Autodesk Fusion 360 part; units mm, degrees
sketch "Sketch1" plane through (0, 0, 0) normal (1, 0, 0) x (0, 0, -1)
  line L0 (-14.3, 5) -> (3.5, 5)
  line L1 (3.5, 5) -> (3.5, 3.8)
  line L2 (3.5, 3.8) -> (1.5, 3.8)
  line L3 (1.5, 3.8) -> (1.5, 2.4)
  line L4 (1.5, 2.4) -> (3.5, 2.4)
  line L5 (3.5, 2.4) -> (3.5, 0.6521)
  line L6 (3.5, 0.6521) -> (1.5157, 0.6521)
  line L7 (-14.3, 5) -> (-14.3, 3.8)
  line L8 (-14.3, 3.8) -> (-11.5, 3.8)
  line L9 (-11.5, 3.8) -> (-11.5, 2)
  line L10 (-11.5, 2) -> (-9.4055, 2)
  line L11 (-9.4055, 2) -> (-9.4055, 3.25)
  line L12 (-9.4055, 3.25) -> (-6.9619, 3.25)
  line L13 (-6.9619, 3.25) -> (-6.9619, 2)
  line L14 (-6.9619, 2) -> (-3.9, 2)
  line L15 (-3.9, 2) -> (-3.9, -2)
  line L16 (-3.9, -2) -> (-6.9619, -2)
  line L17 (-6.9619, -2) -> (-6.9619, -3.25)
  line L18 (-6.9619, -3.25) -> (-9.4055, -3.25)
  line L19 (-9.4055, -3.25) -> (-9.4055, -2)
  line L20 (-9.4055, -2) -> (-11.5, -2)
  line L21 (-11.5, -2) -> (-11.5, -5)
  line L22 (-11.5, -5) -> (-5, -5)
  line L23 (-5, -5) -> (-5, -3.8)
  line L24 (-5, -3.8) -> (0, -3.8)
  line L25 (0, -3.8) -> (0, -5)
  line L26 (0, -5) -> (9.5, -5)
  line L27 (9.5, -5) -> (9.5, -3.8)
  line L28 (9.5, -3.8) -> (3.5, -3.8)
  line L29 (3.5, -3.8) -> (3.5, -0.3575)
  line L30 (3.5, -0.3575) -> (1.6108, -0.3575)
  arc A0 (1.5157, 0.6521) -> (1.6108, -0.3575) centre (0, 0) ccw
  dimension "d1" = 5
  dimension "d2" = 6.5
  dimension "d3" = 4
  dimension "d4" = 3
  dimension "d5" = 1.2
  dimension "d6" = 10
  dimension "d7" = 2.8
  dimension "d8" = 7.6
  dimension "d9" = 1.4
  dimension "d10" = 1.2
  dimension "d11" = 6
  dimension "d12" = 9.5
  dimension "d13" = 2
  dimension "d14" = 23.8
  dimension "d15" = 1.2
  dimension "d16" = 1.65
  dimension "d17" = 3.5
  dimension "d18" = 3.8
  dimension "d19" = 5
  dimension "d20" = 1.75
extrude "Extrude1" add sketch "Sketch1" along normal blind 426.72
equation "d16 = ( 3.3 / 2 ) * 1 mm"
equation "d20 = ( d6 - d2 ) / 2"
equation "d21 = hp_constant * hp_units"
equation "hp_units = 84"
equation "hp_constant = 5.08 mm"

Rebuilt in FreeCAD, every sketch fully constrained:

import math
import FreeCAD as App
import Part
import Sketcher

V = App.Vector

doc = App.newDocument("Part")
body = doc.addObject("PartDesign::Body", "Body")

# Sketch on YZ plane
sketch1 = body.newObject("Sketcher::SketchObject", "Sketch")
sketch1.AttachmentSupport = (doc.getObject("YZ_Plane"), [""])
sketch1.MapMode = "FlatFace"
sketch1.addGeometry([
    Part.LineSegment(V(5, -3.5, 0), V(5, 14.3, 0)),  # 0
    Part.LineSegment(V(5, 14.3, 0), V(3.8, 14.3, 0)),  # 1
    Part.LineSegment(V(3.8, 14.3, 0), V(3.8, 11.5, 0)),  # 2
    Part.LineSegment(V(3.8, 11.5, 0), V(2, 11.5, 0)),  # 3
    Part.LineSegment(V(2, 11.5, 0), V(2, 9.4055, 0)),  # 4
    Part.LineSegment(V(2, 9.4055, 0), V(3.25, 9.4055, 0)),  # 5
    Part.LineSegment(V(3.25, 9.4055, 0), V(3.25, 6.9619, 0)),  # 6
    Part.LineSegment(V(3.25, 6.9619, 0), V(2, 6.9619, 0)),  # 7
    Part.LineSegment(V(2, 6.9619, 0), V(2, 3.9, 0)),  # 8
    Part.LineSegment(V(2, 3.9, 0), V(-2, 3.9, 0)),  # 9
    Part.LineSegment(V(-2, 3.9, 0), V(-2, 6.9619, 0)),  # 10
    Part.LineSegment(V(-2, 6.9619, 0), V(-3.25, 6.9619, 0)),  # 11
    Part.LineSegment(V(-3.25, 6.9619, 0), V(-3.25, 9.4055, 0)),  # 12
    Part.LineSegment(V(-3.25, 9.4055, 0), V(-2, 9.4055, 0)),  # 13
    Part.LineSegment(V(-2, 9.4055, 0), V(-2, 11.5, 0)),  # 14
    Part.LineSegment(V(-2, 11.5, 0), V(-5, 11.5, 0)),  # 15
    Part.LineSegment(V(-5, 11.5, 0), V(-5, 5, 0)),  # 16
    Part.LineSegment(V(-5, 5, 0), V(-3.8, 5, 0)),  # 17
    Part.LineSegment(V(-3.8, 5, 0), V(-3.8, 0, 0)),  # 18
    Part.LineSegment(V(-3.8, 0, 0), V(-5, 0, 0)),  # 19
    Part.LineSegment(V(-5, 0, 0), V(-5, -9.5, 0)),  # 20
    Part.LineSegment(V(-5, -9.5, 0), V(-3.8, -9.5, 0)),  # 21
    Part.LineSegment(V(-3.8, -9.5, 0), V(-3.8, -3.5, 0)),  # 22
    Part.LineSegment(V(-3.8, -3.5, 0), V(-0.3575, -3.5, 0)),  # 23
    Part.LineSegment(V(-0.3575, -3.5, 0), V(-0.3575, -1.6108, 0)),  # 24
    Part.ArcOfCircle(Part.Circle(V(0, 0, 0), V(0, 0, 1), 1.650025), math.radians(-66.721162), math.radians(257.486635)),  # 25
    Part.LineSegment(V(0.6521, -1.5157, 0), V(0.6521, -3.5, 0)),  # 26
    Part.LineSegment(V(0.6521, -3.5, 0), V(2.4, -3.5, 0)),  # 27
    Part.LineSegment(V(2.4, -3.5, 0), V(2.4, -1.5, 0)),  # 28
    Part.LineSegment(V(2.4, -1.5, 0), V(3.8, -1.5, 0)),  # 29
    Part.LineSegment(V(3.8, -1.5, 0), V(3.8, -3.5, 0)),  # 30
    Part.LineSegment(V(3.8, -3.5, 0), V(5, -3.5, 0)),  # 31
], False)
sketch1.addConstraint([
    Sketcher.Constraint("Coincident", 0, 2, 1, 1),
    Sketcher.Constraint("Coincident", 1, 2, 2, 1),
    Sketcher.Constraint("Coincident", 2, 2, 3, 1),
    Sketcher.Constraint("Coincident", 3, 2, 4, 1),
    Sketcher.Constraint("Coincident", 4, 2, 5, 1),
    Sketcher.Constraint("Coincident", 5, 2, 6, 1),
    Sketcher.Constraint("Coincident", 6, 2, 7, 1),
    Sketcher.Constraint("Coincident", 7, 2, 8, 1),
    Sketcher.Constraint("Coincident", 8, 2, 9, 1),
    Sketcher.Constraint("Coincident", 9, 2, 10, 1),
    Sketcher.Constraint("Coincident", 10, 2, 11, 1),
    Sketcher.Constraint("Coincident", 11, 2, 12, 1),
    Sketcher.Constraint("Coincident", 12, 2, 13, 1),
    Sketcher.Constraint("Coincident", 13, 2, 14, 1),
    Sketcher.Constraint("Coincident", 14, 2, 15, 1),
    Sketcher.Constraint("Coincident", 15, 2, 16, 1),
    Sketcher.Constraint("Coincident", 16, 2, 17, 1),
    Sketcher.Constraint("Coincident", 17, 2, 18, 1),
    Sketcher.Constraint("Coincident", 18, 2, 19, 1),
    Sketcher.Constraint("Coincident", 19, 2, 20, 1),
    Sketcher.Constraint("Coincident", 20, 2, 21, 1),
    Sketcher.Constraint("Coincident", 21, 2, 22, 1),
    Sketcher.Constraint("Coincident", 22, 2, 23, 1),
    Sketcher.Constraint("Coincident", 23, 2, 24, 1),
    Sketcher.Constraint("Coincident", 24, 2, 25, 2),
    Sketcher.Constraint("Coincident", 25, 1, 26, 1),
    Sketcher.Constraint("Coincident", 26, 2, 27, 1),
    Sketcher.Constraint("Coincident", 27, 2, 28, 1),
    Sketcher.Constraint("Coincident", 28, 2, 29, 1),
    Sketcher.Constraint("Coincident", 29, 2, 30, 1),
    Sketcher.Constraint("Coincident", 30, 2, 31, 1),
    Sketcher.Constraint("Coincident", 31, 2, 0, 1),
    Sketcher.Constraint("Vertical", 0),
    Sketcher.Constraint("Horizontal", 1),
    Sketcher.Constraint("Vertical", 2),
    Sketcher.Constraint("Horizontal", 3),
    Sketcher.Constraint("Vertical", 4),
    Sketcher.Constraint("Horizontal", 5),
    Sketcher.Constraint("Vertical", 6),
    Sketcher.Constraint("Horizontal", 7),
    Sketcher.Constraint("Vertical", 8),
    Sketcher.Constraint("Horizontal", 9),
    Sketcher.Constraint("Vertical", 10),
    Sketcher.Constraint("Horizontal", 11),
    Sketcher.Constraint("Vertical", 12),
    Sketcher.Constraint("Horizontal", 13),
    Sketcher.Constraint("Vertical", 14),
    Sketcher.Constraint("Horizontal", 15),
    Sketcher.Constraint("Vertical", 16),
    Sketcher.Constraint("Horizontal", 17),
    Sketcher.Constraint("Vertical", 18),
    Sketcher.Constraint("Horizontal", 19),
    Sketcher.Constraint("Vertical", 20),
    Sketcher.Constraint("Horizontal", 21),
    Sketcher.Constraint("Vertical", 22),
    Sketcher.Constraint("Horizontal", 23),
    Sketcher.Constraint("Vertical", 24),
    Sketcher.Constraint("Vertical", 26),
    Sketcher.Constraint("Horizontal", 27),
    Sketcher.Constraint("Vertical", 28),
    Sketcher.Constraint("Horizontal", 29),
    Sketcher.Constraint("Vertical", 30),
    Sketcher.Constraint("Horizontal", 31),
    Sketcher.Constraint("Coincident", 25, 3, -1, 1),
    Sketcher.Constraint("Symmetric", 7, 2, 10, 2, -2),
    Sketcher.Constraint("Symmetric", 5, 2, 12, 2, -2),
    Sketcher.Constraint("Symmetric", 3, 2, 14, 2, -2),
    Sketcher.Constraint("Symmetric", 22, 2, 30, 2, -2),
    Sketcher.Constraint("PointOnObject", 18, 2, -1),
    Sketcher.Constraint("Horizontal", 23, 2, 26, 2),
    Sketcher.Constraint("Vertical", 4, 2, 7, 2),
    Sketcher.Constraint("Vertical", 16, 2, 19, 2),
    Sketcher.Constraint("Vertical", 18, 2, 21, 2),
    Sketcher.Constraint("Vertical", 2, 2, 29, 2),
    Sketcher.Constraint("Equal", 1, 17),
    Sketcher.Constraint("DistanceX", 9, 2, 9, 1, 4.0),
    Sketcher.Constraint("DistanceX", 15, 2, 15, 1, 3.0),
    Sketcher.Constraint("DistanceY", 18, 2, 18, 1, 5.0),
    Sketcher.Constraint("DistanceY", 22, 1, 22, 2, 6.0),
    Sketcher.Constraint("DistanceY", 28, 1, 28, 2, 2.0),
    Sketcher.Constraint("Radius", 25, 1.65),
    Sketcher.Constraint("DistanceX", 1, 2, 1, 1, 1.2),
    Sketcher.Constraint("DistanceX", 29, 1, 29, 2, 1.4),
    Sketcher.Constraint("DistanceY", 2, 2, 2, 1, 2.8),
    Sketcher.Constraint("DistanceY", 16, 2, 16, 1, 6.5),
    Sketcher.Constraint("DistanceY", 20, 2, 20, 1, 9.5),
    Sketcher.Constraint("DistanceX", 5, 2, 0, 2, 1.75),
    Sketcher.Constraint("DistanceY", -1, 1, 8, 2, 3.9),
    Sketcher.Constraint("DistanceX", 27, 1, 27, 2, 1.748),
    Sketcher.Constraint("DistanceY", 8, 2, 8, 1, 3.062),
    Sketcher.Constraint("DistanceX", 23, 1, 23, 2, 3.4425),
    Sketcher.Constraint("DistanceY", 4, 2, 4, 1, 2.0945),
])
pad1 = body.newObject("PartDesign::Pad", "Pad")
pad1.Profile = sketch1
pad1.Length = 426.72

doc.recompute()
